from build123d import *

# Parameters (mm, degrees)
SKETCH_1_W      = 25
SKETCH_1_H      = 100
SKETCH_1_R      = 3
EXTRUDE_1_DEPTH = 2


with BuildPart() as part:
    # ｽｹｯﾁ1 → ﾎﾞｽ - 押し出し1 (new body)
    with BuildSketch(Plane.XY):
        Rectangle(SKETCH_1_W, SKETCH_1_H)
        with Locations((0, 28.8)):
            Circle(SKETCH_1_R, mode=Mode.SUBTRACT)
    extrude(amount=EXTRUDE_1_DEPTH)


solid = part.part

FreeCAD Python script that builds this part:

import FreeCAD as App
import Part
import Sketcher

V = App.Vector


def add_polygon(sketch, points):
    """Adds a closed chain of lines whose ends are joined by coincident constraints."""
    first, n = sketch.GeometryCount, len(points)
    for a, b in zip(points, points[1:] + points[:1]):
        sketch.addGeometry(Part.LineSegment(App.Vector(*a, 0), App.Vector(*b, 0)), False)
    for i in range(n):
        sketch.addConstraint(Sketcher.Constraint("Coincident", first + i, 2, first + (i + 1) % n, 1))

doc = App.newDocument("Part")
params = doc.addObject("Spreadsheet::Sheet", "Params")
for row, (alias, value) in enumerate([
    ("sketch1_diameter", "6 mm"),
    ("sketch1_width", "25 mm"),
    ("sketch1_height", "100 mm"),
    ("pad1_length", "2 mm"),
], start=1):
    params.set(f"A{row}", alias)
    params.set(f"B{row}", "=" + value)
    params.setAlias(f"B{row}", alias)

body = doc.addObject("PartDesign::Body", "Body")

sketch1 = body.newObject("Sketcher::SketchObject", "Sketch")
sketch1.AttachmentSupport = (doc.getObject("XY_Plane"), [""])
sketch1.MapMode = "FlatFace"
add_polygon(sketch1, [(-12.5, 50), (-12.5, -50), (12.5, -50), (12.5, 50)])
sketch1.addGeometry(Part.Circle(V(0, 28.8, 0), V(0, 0, 1), 3), False)
sketch1.addConstraint(Sketcher.Constraint("Vertical", 0))
sketch1.addConstraint(Sketcher.Constraint("Horizontal", 1))
sketch1.addConstraint(Sketcher.Constraint("Vertical", 2))
sketch1.addConstraint(Sketcher.Constraint("Horizontal", 3))
sketch1.addConstraint(Sketcher.Constraint("Symmetric", 0, 2, 2, 2, -1, 1))
sketch1.addConstraint(Sketcher.Constraint("PointOnObject", 4, 3, -2))
sketch1.addConstraint(Sketcher.Constraint("Diameter", 4, 6.0))
sketch1.addConstraint(Sketcher.Constraint("DistanceX", 1, 1, 1, 2, 25.0))
sketch1.addConstraint(Sketcher.Constraint("DistanceY", 0, 2, 0, 1, 100.0))
sketch1.addConstraint(Sketcher.Constraint("DistanceY", -1, 1, 4, 3, 28.8))
sketch1.setExpression("Constraints[10]", "Params.sketch1_diameter")
sketch1.setExpression("Constraints[11]", "Params.sketch1_width")
sketch1.setExpression("Constraints[12]", "Params.sketch1_height")
pad1 = body.newObject("PartDesign::Pad", "Pad")
pad1.Profile = sketch1
pad1.setExpression("Length", "Params.pad1_length")

doc.recompute()
